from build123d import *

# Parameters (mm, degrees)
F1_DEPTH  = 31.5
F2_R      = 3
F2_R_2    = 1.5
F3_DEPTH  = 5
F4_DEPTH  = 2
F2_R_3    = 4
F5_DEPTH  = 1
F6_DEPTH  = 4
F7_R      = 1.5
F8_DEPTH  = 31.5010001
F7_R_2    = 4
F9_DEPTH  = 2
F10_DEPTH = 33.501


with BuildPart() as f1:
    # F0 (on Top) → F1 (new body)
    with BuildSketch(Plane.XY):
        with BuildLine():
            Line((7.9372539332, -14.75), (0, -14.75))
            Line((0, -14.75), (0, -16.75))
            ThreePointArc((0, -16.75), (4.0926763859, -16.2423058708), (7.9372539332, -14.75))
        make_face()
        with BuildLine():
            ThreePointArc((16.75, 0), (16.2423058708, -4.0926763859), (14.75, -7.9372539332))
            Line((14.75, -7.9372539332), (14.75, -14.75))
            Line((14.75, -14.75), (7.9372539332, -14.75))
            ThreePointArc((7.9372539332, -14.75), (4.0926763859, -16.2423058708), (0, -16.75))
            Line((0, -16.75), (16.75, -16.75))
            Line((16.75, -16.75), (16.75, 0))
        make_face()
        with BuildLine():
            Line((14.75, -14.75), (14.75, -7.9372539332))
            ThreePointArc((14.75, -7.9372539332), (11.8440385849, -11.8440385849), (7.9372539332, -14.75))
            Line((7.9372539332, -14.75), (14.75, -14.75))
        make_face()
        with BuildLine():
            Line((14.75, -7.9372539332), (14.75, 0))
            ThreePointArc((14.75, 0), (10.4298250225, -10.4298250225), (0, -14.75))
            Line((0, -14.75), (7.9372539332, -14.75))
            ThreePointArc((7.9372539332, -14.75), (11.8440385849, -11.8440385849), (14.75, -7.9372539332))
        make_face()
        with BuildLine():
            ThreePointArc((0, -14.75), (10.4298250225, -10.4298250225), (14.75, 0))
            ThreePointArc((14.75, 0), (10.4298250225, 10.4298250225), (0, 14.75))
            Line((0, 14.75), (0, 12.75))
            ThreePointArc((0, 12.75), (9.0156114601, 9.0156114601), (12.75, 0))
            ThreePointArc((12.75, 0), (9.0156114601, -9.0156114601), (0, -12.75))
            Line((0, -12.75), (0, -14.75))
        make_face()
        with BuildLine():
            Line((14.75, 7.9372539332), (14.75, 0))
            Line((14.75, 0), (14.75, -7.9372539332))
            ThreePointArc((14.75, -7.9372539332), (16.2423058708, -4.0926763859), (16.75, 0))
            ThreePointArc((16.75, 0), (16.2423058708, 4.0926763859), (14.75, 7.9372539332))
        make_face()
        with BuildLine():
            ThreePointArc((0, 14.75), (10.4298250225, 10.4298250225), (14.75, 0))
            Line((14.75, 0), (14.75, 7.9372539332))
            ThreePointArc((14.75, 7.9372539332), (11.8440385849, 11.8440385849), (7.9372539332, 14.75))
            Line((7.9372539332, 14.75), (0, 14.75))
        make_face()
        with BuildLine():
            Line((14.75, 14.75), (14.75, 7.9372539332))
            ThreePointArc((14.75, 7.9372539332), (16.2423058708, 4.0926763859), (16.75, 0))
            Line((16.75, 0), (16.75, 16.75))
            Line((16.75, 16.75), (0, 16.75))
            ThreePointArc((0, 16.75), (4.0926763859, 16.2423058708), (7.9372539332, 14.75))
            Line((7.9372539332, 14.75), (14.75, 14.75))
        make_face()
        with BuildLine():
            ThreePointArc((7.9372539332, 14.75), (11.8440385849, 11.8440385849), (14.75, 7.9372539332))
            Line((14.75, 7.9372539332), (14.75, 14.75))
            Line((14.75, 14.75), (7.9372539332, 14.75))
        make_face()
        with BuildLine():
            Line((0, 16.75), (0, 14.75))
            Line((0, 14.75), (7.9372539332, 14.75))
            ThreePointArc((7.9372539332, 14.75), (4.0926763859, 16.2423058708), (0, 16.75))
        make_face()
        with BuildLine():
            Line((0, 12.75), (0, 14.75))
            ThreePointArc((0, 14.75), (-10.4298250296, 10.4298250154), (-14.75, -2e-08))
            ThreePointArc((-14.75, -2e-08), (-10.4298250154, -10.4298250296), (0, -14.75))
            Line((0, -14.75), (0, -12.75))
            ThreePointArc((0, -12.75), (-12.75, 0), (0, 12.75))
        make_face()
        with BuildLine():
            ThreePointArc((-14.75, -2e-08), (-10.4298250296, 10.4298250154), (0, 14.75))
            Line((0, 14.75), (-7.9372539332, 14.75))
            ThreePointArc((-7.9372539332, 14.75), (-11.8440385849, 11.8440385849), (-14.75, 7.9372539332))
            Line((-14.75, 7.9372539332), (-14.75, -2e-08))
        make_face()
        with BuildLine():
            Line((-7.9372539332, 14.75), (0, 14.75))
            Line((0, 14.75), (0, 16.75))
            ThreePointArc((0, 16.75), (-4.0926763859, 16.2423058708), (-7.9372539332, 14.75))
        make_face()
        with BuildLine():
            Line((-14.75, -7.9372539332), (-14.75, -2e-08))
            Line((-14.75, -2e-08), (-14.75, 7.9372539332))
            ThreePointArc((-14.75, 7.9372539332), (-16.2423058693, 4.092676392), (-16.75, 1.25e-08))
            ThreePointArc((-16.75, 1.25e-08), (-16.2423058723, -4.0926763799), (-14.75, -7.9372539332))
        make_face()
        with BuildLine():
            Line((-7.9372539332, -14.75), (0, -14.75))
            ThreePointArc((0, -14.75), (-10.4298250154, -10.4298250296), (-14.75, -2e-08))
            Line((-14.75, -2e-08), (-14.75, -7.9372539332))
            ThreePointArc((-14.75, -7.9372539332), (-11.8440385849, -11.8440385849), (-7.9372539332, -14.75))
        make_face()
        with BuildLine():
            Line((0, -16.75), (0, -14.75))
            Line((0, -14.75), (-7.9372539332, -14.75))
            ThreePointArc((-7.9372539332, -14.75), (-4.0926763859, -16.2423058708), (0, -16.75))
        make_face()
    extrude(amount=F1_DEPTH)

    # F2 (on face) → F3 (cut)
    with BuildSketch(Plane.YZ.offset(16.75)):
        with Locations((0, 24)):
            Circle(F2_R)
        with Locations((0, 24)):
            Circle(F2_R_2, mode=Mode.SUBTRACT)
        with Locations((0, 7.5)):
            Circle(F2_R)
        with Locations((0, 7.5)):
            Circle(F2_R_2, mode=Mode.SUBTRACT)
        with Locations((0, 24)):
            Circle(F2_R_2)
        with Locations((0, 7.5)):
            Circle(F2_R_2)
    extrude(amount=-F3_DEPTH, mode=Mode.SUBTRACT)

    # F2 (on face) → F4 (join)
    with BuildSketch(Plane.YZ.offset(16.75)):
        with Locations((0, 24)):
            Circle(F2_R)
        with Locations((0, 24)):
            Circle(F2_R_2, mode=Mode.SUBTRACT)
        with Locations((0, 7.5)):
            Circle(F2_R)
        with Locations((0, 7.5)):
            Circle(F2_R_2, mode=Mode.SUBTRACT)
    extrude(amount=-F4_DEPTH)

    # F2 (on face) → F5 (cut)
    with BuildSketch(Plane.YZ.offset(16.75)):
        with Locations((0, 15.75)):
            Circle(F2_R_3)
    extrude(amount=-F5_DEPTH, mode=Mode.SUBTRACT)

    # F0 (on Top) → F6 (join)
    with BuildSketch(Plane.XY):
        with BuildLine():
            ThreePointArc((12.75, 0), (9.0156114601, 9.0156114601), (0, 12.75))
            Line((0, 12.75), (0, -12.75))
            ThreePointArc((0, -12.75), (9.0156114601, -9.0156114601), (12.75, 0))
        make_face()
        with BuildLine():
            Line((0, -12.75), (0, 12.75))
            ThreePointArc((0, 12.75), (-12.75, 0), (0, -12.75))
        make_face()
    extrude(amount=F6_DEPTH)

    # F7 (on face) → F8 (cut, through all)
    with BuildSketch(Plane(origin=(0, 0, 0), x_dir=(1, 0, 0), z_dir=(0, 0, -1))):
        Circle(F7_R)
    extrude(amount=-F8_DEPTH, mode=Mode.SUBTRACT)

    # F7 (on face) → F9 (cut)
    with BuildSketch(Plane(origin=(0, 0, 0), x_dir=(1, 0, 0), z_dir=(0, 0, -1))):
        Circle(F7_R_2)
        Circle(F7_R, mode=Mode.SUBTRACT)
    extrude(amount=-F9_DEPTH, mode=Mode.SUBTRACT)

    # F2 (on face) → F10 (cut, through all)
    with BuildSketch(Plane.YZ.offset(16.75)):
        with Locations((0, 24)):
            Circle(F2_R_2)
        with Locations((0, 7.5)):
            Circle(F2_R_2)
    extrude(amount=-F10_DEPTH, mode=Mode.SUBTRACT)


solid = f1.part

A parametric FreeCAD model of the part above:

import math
import FreeCAD as App
import Part
import Sketcher
Q = App.Units.Quantity

doc = App.newDocument("Part")
params = doc.addObject("Spreadsheet::Sheet", "Params")
for row, (alias, value) in enumerate([
    ("sketch1_radius", "16.75 mm"),
    ("sketch1_radius2", "12.75 mm"),
    ("sketch1_width", "16.75 mm"),
    ("pad1_length", "31.5 mm"),
    ("sketch2_diameter", "6 mm"),
    ("pocket1_length", "5 mm"),
    ("sketch3_diameter", "6 mm"),
    ("sketch3_diameter2", "3 mm"),
    ("pad2_length", "2 mm"),
    ("sketch4_diameter", "8 mm"),
    ("pocket2_length", "1 mm"),
    ("sketch5_radius", "12.75 mm"),
    ("pad3_length", "4 mm"),
    ("sketch6_diameter", "3 mm"),
    ("sketch7_diameter", "8 mm"),
    ("sketch7_diameter2", "3 mm"),
    ("pocket4_length", "2 mm"),
    ("sketch8_diameter", "3 mm"),
], start=1):
    params.set(f"A{row}", alias)
    params.set(f"B{row}", "=" + value)
    params.setAlias(f"B{row}", alias)

body = doc.addObject("PartDesign::Body", "Body")

sketch1 = body.newObject("Sketcher::SketchObject", "Sketch")
sketch1.AttachmentSupport = (doc.getObject("XY_Plane"), [""])
sketch1.MapMode = "FlatFace"
sketch1.addGeometry(Part.LineSegment(App.Vector(0, -16.75, 0), App.Vector(16.75, -16.75, 0)), False)
sketch1.addGeometry(Part.LineSegment(App.Vector(16.75, -16.75, 0), App.Vector(16.75, 16.75, 0)), False)
sketch1.addGeometry(Part.LineSegment(App.Vector(16.75, 16.75, 0), App.Vector(0, 16.75, 0)), False)
sketch1.addGeometry(Part.ArcOfCircle(Part.Circle(App.Vector(0, 0, 0), App.Vector(0, 0, 1), 16.75), math.radians(90), math.radians(118.285535)), False)
sketch1.addGeometry(Part.ArcOfCircle(Part.Circle(App.Vector(0, 0, 0), App.Vector(0, 0, 1), 16.75), math.radians(118.285535), math.radians(151.714465)), False)
sketch1.addGeometry(Part.ArcOfCircle(Part.Circle(App.Vector(0, 0, 0), App.Vector(0, 0, 1), 16.75), math.radians(151.714465), math.radians(180)), False)
sketch1.addGeometry(Part.ArcOfCircle(Part.Circle(App.Vector(0, 0, 0), App.Vector(0, 0, 1), 16.75), math.radians(180), math.radians(208.285535)), False)
sketch1.addGeometry(Part.ArcOfCircle(Part.Circle(App.Vector(0, 0, 0), App.Vector(0, 0, 1), 16.75), math.radians(-151.714465), math.radians(-118.285535)), False)
sketch1.addGeometry(Part.ArcOfCircle(Part.Circle(App.Vector(0, 0, 0), App.Vector(0, 0, 1), 16.75), math.radians(-118.285535), math.radians(-90)), False)
sketch1.addGeometry(Part.ArcOfCircle(Part.Circle(App.Vector(0, 0, 0), App.Vector(0, 0, 1), 12.75), math.radians(0), math.radians(90)), False)
sketch1.addGeometry(Part.ArcOfCircle(Part.Circle(App.Vector(0, 0, 0), App.Vector(0, 0, 1), 12.75), math.radians(-90), math.radians(0)), False)
sketch1.addGeometry(Part.ArcOfCircle(Part.Circle(App.Vector(0, 0, 0), App.Vector(0, 0, 1), 12.75), math.radians(90), math.radians(270)), False)
sketch1.addConstraint(Sketcher.Constraint("Coincident", 0, 2, 1, 1))
sketch1.addConstraint(Sketcher.Constraint("Coincident", 1, 2, 2, 1))
sketch1.addConstraint(Sketcher.Constraint("Tangent", 2, 2, 3, 1))
sketch1.addConstraint(Sketcher.Constraint("Tangent", 3, 2, 4, 1))
sketch1.addConstraint(Sketcher.Constraint("Tangent", 4, 2, 5, 1))
sketch1.addConstraint(Sketcher.Constraint("Tangent", 5, 2, 6, 1))
sketch1.addConstraint(Sketcher.Constraint("Tangent", 6, 2, 7, 1))
sketch1.addConstraint(Sketcher.Constraint("Tangent", 7, 2, 8, 1))
sketch1.addConstraint(Sketcher.Constraint("Tangent", 8, 2, 0, 1))
sketch1.addConstraint(Sketcher.Constraint("Tangent", 9, 1, 10, 2))
sketch1.addConstraint(Sketcher.Constraint("Tangent", 10, 1, 11, 2))
sketch1.addConstraint(Sketcher.Constraint("Tangent", 11, 1, 9, 2))
sketch1.addConstraint(Sketcher.Constraint("Horizontal", 0))
sketch1.addConstraint(Sketcher.Constraint("Vertical", 1))
sketch1.addConstraint(Sketcher.Constraint("Horizontal", 2))
sketch1.addConstraint(Sketcher.Constraint("Coincident", 3, 3, -1, 1))
sketch1.addConstraint(Sketcher.Constraint("Coincident", 5, 3, -1, 1))
sketch1.addConstraint(Sketcher.Constraint("Coincident", 7, 3, -1, 1))
sketch1.addConstraint(Sketcher.Constraint("Coincident", 9, 3, -1, 1))
sketch1.addConstraint(Sketcher.Constraint("Equal", 7, 8))
sketch1.addConstraint(Sketcher.Constraint("PointOnObject", 5, 2, -1))
sketch1.addConstraint(Sketcher.Constraint("PointOnObject", 9, 1, -1))
sketch1.addConstraint(Sketcher.Constraint("PointOnObject", 10, 1, -2))
sketch1.addConstraint(Sketcher.Constraint("PointOnObject", 11, 1, -2))
sketch1.addConstraint(Sketcher.Constraint("Vertical", 4, 2, 6, 2))
sketch1.addConstraint(Sketcher.Constraint("Vertical", 3, 2, 7, 2))
sketch1.addConstraint(Sketcher.Constraint("Radius", 3, Q("16.75 mm")))
sketch1.addConstraint(Sketcher.Constraint("Radius", 9, Q("12.75 mm")))
sketch1.addConstraint(Sketcher.Constraint("DistanceY", 3, 2, 2, 2, Q("2 mm")))
sketch1.addConstraint(Sketcher.Constraint("DistanceX", 5, 2, 4, 2, Q("2 mm")))
sketch1.addConstraint(Sketcher.Constraint("DistanceX", 0, 1, 0, 2, Q("16.75 mm")))
sketch1.setExpression("Constraints[26]", "Params.sketch1_radius")
sketch1.setExpression("Constraints[27]", "Params.sketch1_radius2")
sketch1.setExpression("Constraints[30]", "Params.sketch1_width")
pad1 = body.newObject("PartDesign::Pad", "Pad")
pad1.Profile = sketch1
pad1.setExpression("Length", "Params.pad1_length")

sketch2 = body.newObject("Sketcher::SketchObject", "Sketch001")
sketch2.AttachmentSupport = (doc.getObject("YZ_Plane"), [""])
sketch2.MapMode = "FlatFace"
sketch2.AttachmentOffset = App.Placement(App.Vector(0, 0, 16.75), App.Rotation())
sketch2.addGeometry(Part.Circle(App.Vector(0, 24, 0), App.Vector(0, 0, 1), 3), False)
sketch2.addGeometry(Part.Circle(App.Vector(0, 7.5, 0), App.Vector(0, 0, 1), 3), False)
sketch2.addConstraint(Sketcher.Constraint("Equal", 0, 1))
sketch2.addConstraint(Sketcher.Constraint("PointOnObject", 0, 3, -2))
sketch2.addConstraint(Sketcher.Constraint("PointOnObject", 1, 3, -2))
sketch2.addConstraint(Sketcher.Constraint("Diameter", 0, Q("6 mm")))
sketch2.addConstraint(Sketcher.Constraint("DistanceY", -1, 1, 0, 3, Q("24 mm")))
sketch2.addConstraint(Sketcher.Constraint("DistanceY", -1, 1, 1, 3, Q("7.5 mm")))
sketch2.setExpression("Constraints[3]", "Params.sketch2_diameter")
pocket1 = body.newObject("PartDesign::Pocket", "Pocket")
pocket1.Profile = sketch2
pocket1.setExpression("Length", "Params.pocket1_length")

sketch3 = body.newObject("Sketcher::SketchObject", "Sketch002")
sketch3.AttachmentSupport = (doc.getObject("YZ_Plane"), [""])
sketch3.MapMode = "FlatFace"
sketch3.AttachmentOffset = App.Placement(App.Vector(0, 0, 16.75), App.Rotation())
sketch3.addGeometry(Part.Circle(App.Vector(0, 24, 0), App.Vector(0, 0, 1), 3), False)
sketch3.addGeometry(Part.Circle(App.Vector(0, 24, 0), App.Vector(0, 0, 1), 1.5), False)
sketch3.addGeometry(Part.Circle(App.Vector(0, 7.5, 0), App.Vector(0, 0, 1), 3), False)
sketch3.addGeometry(Part.Circle(App.Vector(0, 7.5, 0), App.Vector(0, 0, 1), 1.5), False)
sketch3.addConstraint(Sketcher.Constraint("Coincident", 1, 3, 0, 3))
sketch3.addConstraint(Sketcher.Constraint("Coincident", 3, 3, 2, 3))
sketch3.addConstraint(Sketcher.Constraint("Equal", 0, 2))
sketch3.addConstraint(Sketcher.Constraint("Equal", 1, 3))
sketch3.addConstraint(Sketcher.Constraint("PointOnObject", 0, 3, -2))
sketch3.addConstraint(Sketcher.Constraint("PointOnObject", 2, 3, -2))
sketch3.addConstraint(Sketcher.Constraint("Diameter", 0, Q("6 mm")))
sketch3.addConstraint(Sketcher.Constraint("Diameter", 1, Q("3 mm")))
sketch3.addConstraint(Sketcher.Constraint("DistanceY", -1, 1, 0, 3, Q("24 mm")))
sketch3.addConstraint(Sketcher.Constraint("DistanceY", -1, 1, 2, 3, Q("7.5 mm")))
sketch3.setExpression("Constraints[6]", "Params.sketch3_diameter")
sketch3.setExpression("Constraints[7]", "Params.sketch3_diameter2")
pad2 = body.newObject("PartDesign::Pad", "Pad001")
pad2.Profile = sketch3
pad2.setExpression("Length", "Params.pad2_length")
pad2.Reversed = True

sketch4 = body.newObject("Sketcher::SketchObject", "Sketch003")
sketch4.AttachmentSupport = (doc.getObject("YZ_Plane"), [""])
sketch4.MapMode = "FlatFace"
sketch4.AttachmentOffset = App.Placement(App.Vector(0, 0, 16.75), App.Rotation())
sketch4.addGeometry(Part.Circle(App.Vector(0, 15.75, 0), App.Vector(0, 0, 1), 4), False)
sketch4.addConstraint(Sketcher.Constraint("PointOnObject", 0, 3, -2))
sketch4.addConstraint(Sketcher.Constraint("Diameter", 0, Q("8 mm")))
sketch4.addConstraint(Sketcher.Constraint("DistanceY", -1, 1, 0, 3, Q("15.75 mm")))
sketch4.setExpression("Constraints[1]", "Params.sketch4_diameter")
pocket2 = body.newObject("PartDesign::Pocket", "Pocket001")
pocket2.Profile = sketch4
pocket2.setExpression("Length", "Params.pocket2_length")

sketch5 = body.newObject("Sketcher::SketchObject", "Sketch004")
sketch5.AttachmentSupport = (doc.getObject("XY_Plane"), [""])
sketch5.MapMode = "FlatFace"
sketch5.addGeometry(Part.ArcOfCircle(Part.Circle(App.Vector(0, 0, 0), App.Vector(0, 0, 1), 12.75), math.radians(0), math.radians(90)), False)
sketch5.addGeometry(Part.ArcOfCircle(Part.Circle(App.Vector(0, 0, 0), App.Vector(0, 0, 1), 12.75), math.radians(90), math.radians(270)), False)
sketch5.addGeometry(Part.ArcOfCircle(Part.Circle(App.Vector(0, 0, 0), App.Vector(0, 0, 1), 12.75), math.radians(-90), math.radians(0)), False)
sketch5.addConstraint(Sketcher.Constraint("Tangent", 0, 2, 1, 1))
sketch5.addConstraint(Sketcher.Constraint("Tangent", 1, 2, 2, 1))
sketch5.addConstraint(Sketcher.Constraint("Tangent", 2, 2, 0, 1))
sketch5.addConstraint(Sketcher.Constraint("Coincident", 0, 3, -1, 1))
sketch5.addConstraint(Sketcher.Constraint("PointOnObject", 0, 2, -2))
sketch5.addConstraint(Sketcher.Constraint("PointOnObject", 1, 2, -2))
sketch5.addConstraint(Sketcher.Constraint("PointOnObject", 2, 2, -1))
sketch5.addConstraint(Sketcher.Constraint("Radius", 0, Q("12.75 mm")))
sketch5.setExpression("Constraints[7]", "Params.sketch5_radius")
pad3 = body.newObject("PartDesign::Pad", "Pad002")
pad3.Profile = sketch5
pad3.setExpression("Length", "Params.pad3_length")

sketch6 = body.newObject("Sketcher::SketchObject", "Sketch005")
sketch6.AttachmentSupport = (doc.getObject("XY_Plane"), [""])
sketch6.MapMode = "FlatFace"
sketch6.addGeometry(Part.Circle(App.Vector(0, 0, 0), App.Vector(0, 0, 1), 1.5), False)
sketch6.addConstraint(Sketcher.Constraint("Coincident", 0, 3, -1, 1))
sketch6.addConstraint(Sketcher.Constraint("Diameter", 0, Q("3 mm")))
sketch6.setExpression("Constraints[1]", "Params.sketch6_diameter")
pocket3 = body.newObject("PartDesign::Pocket", "Pocket002")
pocket3.Profile = sketch6
pocket3.Type = "ThroughAll"
pocket3.Reversed = True

sketch7 = body.newObject("Sketcher::SketchObject", "Sketch006")
sketch7.AttachmentSupport = (doc.getObject("XY_Plane"), [""])
sketch7.MapMode = "FlatFace"
sketch7.addGeometry(Part.Circle(App.Vector(0, 0, 0), App.Vector(0, 0, 1), 4), False)
sketch7.addGeometry(Part.Circle(App.Vector(0, 0, 0), App.Vector(0, 0, 1), 1.5), False)
sketch7.addConstraint(Sketcher.Constraint("Coincident", 0, 3, -1, 1))
sketch7.addConstraint(Sketcher.Constraint("Coincident", 1, 3, -1, 1))
sketch7.addConstraint(Sketcher.Constraint("Diameter", 0, Q("8 mm")))
sketch7.addConstraint(Sketcher.Constraint("Diameter", 1, Q("3 mm")))
sketch7.setExpression("Constraints[2]", "Params.sketch7_diameter")
sketch7.setExpression("Constraints[3]", "Params.sketch7_diameter2")
pocket4 = body.newObject("PartDesign::Pocket", "Pocket003")
pocket4.Profile = sketch7
pocket4.setExpression("Length", "Params.pocket4_length")
pocket4.Reversed = True

sketch8 = body.newObject("Sketcher::SketchObject", "Sketch007")
sketch8.AttachmentSupport = (doc.getObject("YZ_Plane"), [""])
sketch8.MapMode = "FlatFace"
sketch8.AttachmentOffset = App.Placement(App.Vector(0, 0, 16.75), App.Rotation())
sketch8.addGeometry(Part.Circle(App.Vector(0, 24, 0), App.Vector(0, 0, 1), 1.5), False)
sketch8.addGeometry(Part.Circle(App.Vector(0, 7.5, 0), App.Vector(0, 0, 1), 1.5), False)
sketch8.addConstraint(Sketcher.Constraint("Equal", 0, 1))
sketch8.addConstraint(Sketcher.Constraint("PointOnObject", 0, 3, -2))
sketch8.addConstraint(Sketcher.Constraint("PointOnObject", 1, 3, -2))
sketch8.addConstraint(Sketcher.Constraint("Diameter", 0, Q("3 mm")))
sketch8.addConstraint(Sketcher.Constraint("DistanceY", -1, 1, 0, 3, Q("24 mm")))
sketch8.addConstraint(Sketcher.Constraint("DistanceY", -1, 1, 1, 3, Q("7.5 mm")))
sketch8.setExpression("Constraints[3]", "Params.sketch8_diameter")
pocket5 = body.newObject("PartDesign::Pocket", "Pocket004")
pocket5.Profile = sketch8
pocket5.Type = "ThroughAll"

doc.recompute()
